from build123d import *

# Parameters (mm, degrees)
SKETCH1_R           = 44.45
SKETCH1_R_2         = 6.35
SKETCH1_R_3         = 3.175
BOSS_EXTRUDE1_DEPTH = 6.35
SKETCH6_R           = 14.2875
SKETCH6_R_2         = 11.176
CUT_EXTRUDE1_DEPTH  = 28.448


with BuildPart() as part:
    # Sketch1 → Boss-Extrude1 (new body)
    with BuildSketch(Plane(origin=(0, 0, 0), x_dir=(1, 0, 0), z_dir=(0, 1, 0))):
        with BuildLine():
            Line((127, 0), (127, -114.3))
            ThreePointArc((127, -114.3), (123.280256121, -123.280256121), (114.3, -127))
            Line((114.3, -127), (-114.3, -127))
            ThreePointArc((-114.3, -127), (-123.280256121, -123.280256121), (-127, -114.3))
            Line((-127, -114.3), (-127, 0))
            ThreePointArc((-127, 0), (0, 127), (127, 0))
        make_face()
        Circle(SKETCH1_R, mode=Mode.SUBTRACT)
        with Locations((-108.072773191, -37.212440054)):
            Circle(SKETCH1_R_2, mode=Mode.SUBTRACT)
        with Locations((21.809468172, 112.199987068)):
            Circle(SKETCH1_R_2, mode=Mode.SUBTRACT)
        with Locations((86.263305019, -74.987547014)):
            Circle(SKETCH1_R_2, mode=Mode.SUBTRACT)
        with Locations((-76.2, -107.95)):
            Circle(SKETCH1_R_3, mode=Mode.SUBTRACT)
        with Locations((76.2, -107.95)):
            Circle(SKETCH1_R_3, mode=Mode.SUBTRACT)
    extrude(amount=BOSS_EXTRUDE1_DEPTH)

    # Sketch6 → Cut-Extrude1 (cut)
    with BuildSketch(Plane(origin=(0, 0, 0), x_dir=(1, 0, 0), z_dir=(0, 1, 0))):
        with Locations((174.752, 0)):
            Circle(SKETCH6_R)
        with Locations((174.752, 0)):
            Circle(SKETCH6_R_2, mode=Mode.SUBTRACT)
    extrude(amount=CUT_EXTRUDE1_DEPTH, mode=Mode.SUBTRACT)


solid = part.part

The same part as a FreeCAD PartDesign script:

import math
import FreeCAD as App
import Part
import Sketcher
Q = App.Units.Quantity

doc = App.newDocument("Part")
params = doc.addObject("Spreadsheet::Sheet", "Params")
for row, (alias, value) in enumerate([
    ("sketch1_radius", "5 in"),
    ("sketch1_diameter", "0.5 in"),
    ("sketch1_diameter2", "3.5 in"),
    ("sketch1_radius2", "0.5 in"),
    ("sketch1_diameter3", "0.25 in"),
    ("pad1_length", "0.25 in"),
    ("sketch2_diameter", "0.88 in"),
    ("sketch2_diameter2", "1.125 in"),
    ("pocket1_length", "1.12 in"),
], start=1):
    params.set(f"A{row}", alias)
    params.set(f"B{row}", "=" + value)
    params.setAlias(f"B{row}", alias)

body = doc.addObject("PartDesign::Body", "Body")

sketch1 = body.newObject("Sketcher::SketchObject", "Sketch")
sketch1.AttachmentSupport = (doc.getObject("XZ_Plane"), [""])
sketch1.MapMode = "FlatFace"
sketch1.addGeometry([
    Part.LineSegment(App.Vector(127, 114.3, 0), App.Vector(127, 0, 0)),
    Part.ArcOfCircle(Part.Circle(App.Vector(0, 0, 0), App.Vector(0, 0, 1), 127), math.radians(180), math.radians(360)),
    Part.LineSegment(App.Vector(-127, 0, 0), App.Vector(-127, 114.3, 0)),
    Part.ArcOfCircle(Part.Circle(App.Vector(-114.3, 114.3, 0), App.Vector(0, 0, 1), 12.7), math.radians(90), math.radians(180)),
    Part.LineSegment(App.Vector(-114.3, 127, 0), App.Vector(114.3, 127, 0)),
    Part.ArcOfCircle(Part.Circle(App.Vector(114.3, 114.3, 0), App.Vector(0, 0, 1), 12.7), math.radians(0), math.radians(90)),
    Part.Circle(App.Vector(76.2, 108, 0), App.Vector(0, 0, 1), 3.2),
    Part.Circle(App.Vector(86.3, 75, 0), App.Vector(0, 0, 1), 6.3),
    Part.Circle(App.Vector(0, 0, 0), App.Vector(0, 0, 1), 44.5),
    Part.Circle(App.Vector(-76.2, 108, 0), App.Vector(0, 0, 1), 3.2),
    Part.Circle(App.Vector(-108.1, 37.2, 0), App.Vector(0, 0, 1), 6.3),
    Part.Circle(App.Vector(21.8, -112.2, 0), App.Vector(0, 0, 1), 6.3),
], False)
sketch1.addConstraint([
    Sketcher.Constraint("Tangent", 0, 2, 1, 2),
    Sketcher.Constraint("Tangent", 1, 1, 2, 1),
    Sketcher.Constraint("Tangent", 2, 2, 3, 2),
    Sketcher.Constraint("Tangent", 3, 1, 4, 1),
    Sketcher.Constraint("Tangent", 4, 2, 5, 2),
    Sketcher.Constraint("Tangent", 5, 1, 0, 1),
    Sketcher.Constraint("Vertical", 0),
    Sketcher.Constraint("Vertical", 2),
    Sketcher.Constraint("Horizontal", 4),
    Sketcher.Constraint("Coincident", 1, 3, -1, 1),
    Sketcher.Constraint("Coincident", 8, 3, -1, 1),
    Sketcher.Constraint("Equal", 3, 5),
    Sketcher.Constraint("Equal", 6, 9),
    Sketcher.Constraint("Equal", 7, 10),
    Sketcher.Constraint("Equal", 10, 11),
    Sketcher.Constraint("Symmetric", 6, 3, 9, 3, -2),
    Sketcher.Constraint("Radius", 1, Q("5 in")),
    Sketcher.Constraint("Diameter", 7, Q("0.5 in")),
    Sketcher.Constraint("Diameter", 8, Q("3.5 in")),
    Sketcher.Constraint("Radius", 3, Q("0.5 in")),
    Sketcher.Constraint("Diameter", 6, Q("0.25 in")),
    Sketcher.Constraint("DistanceY", 0, 2, 0, 1, Q("4.5 in")),
    Sketcher.Constraint("DistanceX", -1, 1, 6, 3, Q("3 in")),
    Sketcher.Constraint("DistanceY", -1, 1, 6, 3, Q("4.25 in")),
    Sketcher.Constraint("DistanceY", -1, 1, 10, 3, Q("37.21244 mm")),
    Sketcher.Constraint("DistanceX", -1, 1, 11, 3, Q("21.809468 mm")),
    Sketcher.Constraint("DistanceX", 10, 3, 11, 3, Q("129.882241 mm")),
    Sketcher.Constraint("DistanceX", -1, 1, 7, 3, Q("86.263305 mm")),
    Sketcher.Constraint("DistanceY", -1, 1, 7, 3, Q("74.987547 mm")),
    Sketcher.Constraint("DistanceY", 11, 3, -1, 1, Q("112.199987 mm")),
])
sketch1.setExpression("Constraints[16]", "Params.sketch1_radius")
sketch1.setExpression("Constraints[17]", "Params.sketch1_diameter")
sketch1.setExpression("Constraints[18]", "Params.sketch1_diameter2")
sketch1.setExpression("Constraints[19]", "Params.sketch1_radius2")
sketch1.setExpression("Constraints[20]", "Params.sketch1_diameter3")
pad1 = body.newObject("PartDesign::Pad", "Pad")
pad1.Profile = sketch1
pad1.setExpression("Length", "Params.pad1_length")
pad1.Reversed = True

sketch2 = body.newObject("Sketcher::SketchObject", "Sketch001")
sketch2.AttachmentSupport = (doc.getObject("XZ_Plane"), [""])
sketch2.MapMode = "FlatFace"
sketch2.addGeometry([
    Part.Circle(App.Vector(175, 0, 0), App.Vector(0, 0, 1), 14),
    Part.Circle(App.Vector(175, 0, 0), App.Vector(0, 0, 1), 11),
], False)
sketch2.addConstraint([
    Sketcher.Constraint("Coincident", 1, 3, 0, 3),
    Sketcher.Constraint("PointOnObject", 0, 3, -1),
    Sketcher.Constraint("Diameter", 1, Q("0.88 in")),
    Sketcher.Constraint("Diameter", 0, Q("1.125 in")),
    Sketcher.Constraint("DistanceX", -1, 1, 0, 3, Q("6.88 in")),
])
sketch2.setExpression("Constraints[2]", "Params.sketch2_diameter")
sketch2.setExpression("Constraints[3]", "Params.sketch2_diameter2")
pocket1 = body.newObject("PartDesign::Pocket", "Pocket")
pocket1.Profile = sketch2
pocket1.setExpression("Length", "Params.pocket1_length")

doc.recompute()
